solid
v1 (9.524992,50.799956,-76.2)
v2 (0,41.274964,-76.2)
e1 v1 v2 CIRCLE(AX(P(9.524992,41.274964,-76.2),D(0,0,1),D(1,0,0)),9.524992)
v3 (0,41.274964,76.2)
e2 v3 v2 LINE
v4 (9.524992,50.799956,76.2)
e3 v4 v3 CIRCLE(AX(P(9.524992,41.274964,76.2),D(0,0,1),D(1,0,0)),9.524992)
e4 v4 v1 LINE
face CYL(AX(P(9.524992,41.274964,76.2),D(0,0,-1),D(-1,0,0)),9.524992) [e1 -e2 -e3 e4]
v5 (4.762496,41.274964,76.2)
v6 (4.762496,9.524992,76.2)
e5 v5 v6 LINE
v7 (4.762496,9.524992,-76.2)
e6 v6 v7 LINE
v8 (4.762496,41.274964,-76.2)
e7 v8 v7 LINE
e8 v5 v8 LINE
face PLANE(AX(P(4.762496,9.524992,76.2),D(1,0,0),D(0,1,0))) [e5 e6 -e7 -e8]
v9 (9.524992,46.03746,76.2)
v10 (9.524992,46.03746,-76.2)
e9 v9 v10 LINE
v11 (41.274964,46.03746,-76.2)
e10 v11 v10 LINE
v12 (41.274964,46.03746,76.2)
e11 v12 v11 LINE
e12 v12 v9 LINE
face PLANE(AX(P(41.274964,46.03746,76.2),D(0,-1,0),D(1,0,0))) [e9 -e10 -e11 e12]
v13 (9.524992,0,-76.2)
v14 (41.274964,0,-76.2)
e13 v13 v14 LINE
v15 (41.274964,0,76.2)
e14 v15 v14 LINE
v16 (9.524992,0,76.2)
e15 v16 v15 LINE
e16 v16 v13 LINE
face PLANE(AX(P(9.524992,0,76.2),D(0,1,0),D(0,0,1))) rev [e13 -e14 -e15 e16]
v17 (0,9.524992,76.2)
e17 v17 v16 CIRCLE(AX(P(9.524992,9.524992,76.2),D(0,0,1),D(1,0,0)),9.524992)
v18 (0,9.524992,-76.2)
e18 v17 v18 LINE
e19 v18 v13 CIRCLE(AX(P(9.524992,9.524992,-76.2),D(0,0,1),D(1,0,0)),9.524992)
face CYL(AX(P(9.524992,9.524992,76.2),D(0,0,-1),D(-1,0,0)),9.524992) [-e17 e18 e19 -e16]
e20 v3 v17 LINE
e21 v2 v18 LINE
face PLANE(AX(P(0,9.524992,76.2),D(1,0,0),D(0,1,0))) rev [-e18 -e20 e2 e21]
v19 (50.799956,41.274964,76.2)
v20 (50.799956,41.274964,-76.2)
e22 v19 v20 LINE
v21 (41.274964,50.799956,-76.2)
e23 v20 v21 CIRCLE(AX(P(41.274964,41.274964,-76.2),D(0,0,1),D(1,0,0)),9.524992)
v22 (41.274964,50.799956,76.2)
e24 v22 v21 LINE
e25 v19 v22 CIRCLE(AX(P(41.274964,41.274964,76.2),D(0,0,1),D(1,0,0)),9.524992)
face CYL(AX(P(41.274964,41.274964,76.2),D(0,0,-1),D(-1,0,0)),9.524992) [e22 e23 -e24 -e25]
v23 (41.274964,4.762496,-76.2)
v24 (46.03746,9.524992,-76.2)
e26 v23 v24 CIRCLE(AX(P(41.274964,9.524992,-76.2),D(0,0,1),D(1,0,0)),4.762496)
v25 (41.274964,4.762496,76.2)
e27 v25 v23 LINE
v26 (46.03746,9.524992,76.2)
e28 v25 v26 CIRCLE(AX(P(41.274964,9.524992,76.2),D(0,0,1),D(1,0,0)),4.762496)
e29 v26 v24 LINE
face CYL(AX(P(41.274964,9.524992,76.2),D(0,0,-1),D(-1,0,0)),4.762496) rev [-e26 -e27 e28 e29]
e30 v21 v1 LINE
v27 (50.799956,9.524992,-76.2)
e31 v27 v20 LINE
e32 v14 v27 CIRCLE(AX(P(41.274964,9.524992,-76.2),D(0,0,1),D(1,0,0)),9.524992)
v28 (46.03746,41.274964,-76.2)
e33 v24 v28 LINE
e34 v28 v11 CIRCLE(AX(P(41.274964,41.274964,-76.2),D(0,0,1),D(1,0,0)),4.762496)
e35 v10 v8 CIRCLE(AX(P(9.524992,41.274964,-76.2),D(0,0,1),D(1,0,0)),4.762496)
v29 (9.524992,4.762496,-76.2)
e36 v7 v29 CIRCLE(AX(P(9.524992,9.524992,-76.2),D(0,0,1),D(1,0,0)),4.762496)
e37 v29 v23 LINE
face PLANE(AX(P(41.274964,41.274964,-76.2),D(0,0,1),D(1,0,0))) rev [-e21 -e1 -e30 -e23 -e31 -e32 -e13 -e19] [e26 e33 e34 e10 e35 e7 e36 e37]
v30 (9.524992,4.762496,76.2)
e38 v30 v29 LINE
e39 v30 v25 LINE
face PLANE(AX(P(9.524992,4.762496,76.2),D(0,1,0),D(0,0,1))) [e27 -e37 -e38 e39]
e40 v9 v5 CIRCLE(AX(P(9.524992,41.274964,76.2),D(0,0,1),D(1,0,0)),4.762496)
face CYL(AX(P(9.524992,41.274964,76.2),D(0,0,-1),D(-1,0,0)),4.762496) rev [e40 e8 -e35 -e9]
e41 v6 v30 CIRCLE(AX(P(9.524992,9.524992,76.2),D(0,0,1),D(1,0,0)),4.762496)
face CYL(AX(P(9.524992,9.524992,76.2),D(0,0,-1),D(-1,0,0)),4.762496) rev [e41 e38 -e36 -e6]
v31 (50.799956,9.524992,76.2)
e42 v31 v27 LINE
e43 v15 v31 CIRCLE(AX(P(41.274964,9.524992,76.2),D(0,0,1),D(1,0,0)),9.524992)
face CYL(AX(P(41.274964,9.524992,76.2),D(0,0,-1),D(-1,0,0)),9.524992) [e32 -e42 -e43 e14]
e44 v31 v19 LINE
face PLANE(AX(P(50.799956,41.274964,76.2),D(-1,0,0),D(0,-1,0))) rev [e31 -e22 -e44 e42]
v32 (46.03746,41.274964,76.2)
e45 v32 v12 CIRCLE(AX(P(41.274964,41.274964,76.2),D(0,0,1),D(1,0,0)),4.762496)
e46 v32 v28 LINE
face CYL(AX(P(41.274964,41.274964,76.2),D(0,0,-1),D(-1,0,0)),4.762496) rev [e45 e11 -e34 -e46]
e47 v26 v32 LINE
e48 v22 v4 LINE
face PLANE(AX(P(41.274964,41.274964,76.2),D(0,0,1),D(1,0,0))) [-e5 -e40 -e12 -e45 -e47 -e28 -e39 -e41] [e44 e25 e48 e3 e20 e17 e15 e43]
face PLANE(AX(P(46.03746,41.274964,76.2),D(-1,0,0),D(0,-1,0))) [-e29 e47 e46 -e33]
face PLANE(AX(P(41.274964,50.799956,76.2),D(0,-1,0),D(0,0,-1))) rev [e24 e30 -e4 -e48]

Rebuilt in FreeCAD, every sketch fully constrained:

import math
import FreeCAD as App
import Part
import Sketcher
from FreeCAD import Vector
Q = App.Units.Quantity

doc = App.newDocument("Part")
body = doc.addObject("PartDesign::Body", "Body")

# Sketch on XY plane
sketch1 = body.newObject("Sketcher::SketchObject", "Sketch")
sketch1.AttachmentSupport = (doc.getObject("XY_Plane"), [""])
sketch1.MapMode = "FlatFace"
sketch1.addGeometry([
    Part.LineSegment(Vector(9.5, 0, 0), Vector(41.3, 0, 0)),  # 0
    Part.ArcOfCircle(Part.Circle(Vector(41.3, 9.5, 0), Vector(0, 0, 1), 9.5), math.radians(-90), math.radians(0)),  # 1
    Part.LineSegment(Vector(50.8, 9.5, 0), Vector(50.8, 41.3, 0)),  # 2
    Part.ArcOfCircle(Part.Circle(Vector(41.3, 41.3, 0), Vector(0, 0, 1), 9.5), math.radians(0), math.radians(90)),  # 3
    Part.LineSegment(Vector(41.3, 50.8, 0), Vector(9.5, 50.8, 0)),  # 4
    Part.ArcOfCircle(Part.Circle(Vector(9.5, 41.3, 0), Vector(0, 0, 1), 9.5), math.radians(90), math.radians(180)),  # 5
    Part.LineSegment(Vector(0, 41.3, 0), Vector(0, 9.5, 0)),  # 6
    Part.ArcOfCircle(Part.Circle(Vector(9.5, 9.5, 0), Vector(0, 0, 1), 9.5), math.radians(-180), math.radians(-90)),  # 7
    Part.LineSegment(Vector(41.3, 4.8, 0), Vector(9.5, 4.8, 0)),  # 8
    Part.ArcOfCircle(Part.Circle(Vector(9.5, 9.5, 0), Vector(0, 0, 1), 4.8), math.radians(180), math.radians(270)),  # 9
    Part.LineSegment(Vector(4.8, 9.5, 0), Vector(4.8, 41.3, 0)),  # 10
    Part.ArcOfCircle(Part.Circle(Vector(9.5, 41.3, 0), Vector(0, 0, 1), 4.8), math.radians(90), math.radians(180)),  # 11
    Part.LineSegment(Vector(9.5, 46, 0), Vector(41.3, 46, 0)),  # 12
    Part.ArcOfCircle(Part.Circle(Vector(41.3, 41.3, 0), Vector(0, 0, 1), 4.8), math.radians(0), math.radians(90)),  # 13
    Part.LineSegment(Vector(46, 41.3, 0), Vector(46, 9.5, 0)),  # 14
    Part.ArcOfCircle(Part.Circle(Vector(41.3, 9.5, 0), Vector(0, 0, 1), 4.8), math.radians(-90), math.radians(0)),  # 15
], False)
sketch1.addConstraint([
    Sketcher.Constraint("Tangent", 0, 2, 1, 1),
    Sketcher.Constraint("Tangent", 1, 2, 2, 1),
    Sketcher.Constraint("Tangent", 2, 2, 3, 1),
    Sketcher.Constraint("Tangent", 3, 2, 4, 1),
    Sketcher.Constraint("Tangent", 4, 2, 5, 1),
    Sketcher.Constraint("Tangent", 5, 2, 6, 1),
    Sketcher.Constraint("Tangent", 6, 2, 7, 1),
    Sketcher.Constraint("Tangent", 7, 2, 0, 1),
    Sketcher.Constraint("Tangent", 8, 2, 9, 2),
    Sketcher.Constraint("Tangent", 9, 1, 10, 1),
    Sketcher.Constraint("Tangent", 10, 2, 11, 2),
    Sketcher.Constraint("Tangent", 11, 1, 12, 1),
    Sketcher.Constraint("Tangent", 12, 2, 13, 2),
    Sketcher.Constraint("Tangent", 13, 1, 14, 1),
    Sketcher.Constraint("Tangent", 14, 2, 15, 2),
    Sketcher.Constraint("Tangent", 15, 1, 8, 1),
    Sketcher.Constraint("Horizontal", 0),
    Sketcher.Constraint("Vertical", 2),
    Sketcher.Constraint("Horizontal", 4),
    Sketcher.Constraint("Vertical", 6),
    Sketcher.Constraint("Horizontal", 8),
    Sketcher.Constraint("Vertical", 10),
    Sketcher.Constraint("Horizontal", 12),
    Sketcher.Constraint("Vertical", 14),
    Sketcher.Constraint("Coincident", 9, 3, 7, 3),
    Sketcher.Constraint("Coincident", 11, 3, 5, 3),
    Sketcher.Constraint("Coincident", 13, 3, 3, 3),
    Sketcher.Constraint("Equal", 1, 3),
    Sketcher.Constraint("Equal", 3, 5),
    Sketcher.Constraint("Equal", 5, 7),
    Sketcher.Constraint("Equal", 13, 15),
    Sketcher.Constraint("PointOnObject", 0, 2, -1),
    Sketcher.Constraint("PointOnObject", 5, 2, -2),
    Sketcher.Constraint("Equal", 12, 2),
    Sketcher.Constraint("Radius", 9, Q("0.1874998 in")),
    Sketcher.Constraint("Radius", 1, 9.524992),
    Sketcher.Constraint("DistanceX", 0, 1, 0, 2, 31.749972),
])
pad1 = body.newObject("PartDesign::Pad", "Pad")
pad1.Profile = sketch1
pad1.Length = Q("6 in")
pad1.Midplane = True

doc.recompute()
